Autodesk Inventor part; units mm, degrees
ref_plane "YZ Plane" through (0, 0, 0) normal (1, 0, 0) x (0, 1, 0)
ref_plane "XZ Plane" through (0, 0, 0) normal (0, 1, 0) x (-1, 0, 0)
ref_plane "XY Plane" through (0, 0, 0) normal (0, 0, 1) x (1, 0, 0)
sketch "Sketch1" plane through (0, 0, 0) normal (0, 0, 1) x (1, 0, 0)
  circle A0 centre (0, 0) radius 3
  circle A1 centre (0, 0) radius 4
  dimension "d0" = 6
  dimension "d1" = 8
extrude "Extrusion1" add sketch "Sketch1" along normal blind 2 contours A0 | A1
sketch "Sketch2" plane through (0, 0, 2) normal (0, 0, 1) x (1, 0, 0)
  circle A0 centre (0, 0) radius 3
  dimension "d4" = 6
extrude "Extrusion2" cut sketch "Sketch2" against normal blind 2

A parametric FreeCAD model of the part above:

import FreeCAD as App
import Part
import Sketcher
from FreeCAD import Vector
Q = App.Units.Quantity

doc = App.newDocument("Part")
body = doc.addObject("PartDesign::Body", "Body")

sketch1 = body.newObject("Sketcher::SketchObject", "Sketch")
sketch1.AttachmentSupport = (doc.getObject("XY_Plane"), [""])
sketch1.MapMode = "FlatFace"
sketch1.addGeometry(Part.Circle(Vector(0, 0, 0), Vector(0, 0, 1), 4), False)
sketch1.addConstraint([
    Sketcher.Constraint("Coincident", 0, 3, -1, 1),
    Sketcher.Constraint("Diameter", 0, Q("8 mm")),
])
pad1 = body.newObject("PartDesign::Pad", "Pad")
pad1.Profile = sketch1
pad1.Length = 2

sketch2 = body.newObject("Sketcher::SketchObject", "Sketch001")
sketch2.AttachmentSupport = (doc.getObject("XY_Plane"), [""])
sketch2.MapMode = "FlatFace"
sketch2.AttachmentOffset = App.Placement(Vector(0, 0, 2), App.Rotation())
sketch2.addGeometry(Part.Circle(Vector(0, 0, 0), Vector(0, 0, 1), 3), False)
sketch2.addConstraint([
    Sketcher.Constraint("Coincident", 0, 3, -1, 1),
    Sketcher.Constraint("Diameter", 0, Q("6 mm")),
])
pocket1 = body.newObject("PartDesign::Pocket", "Pocket")
pocket1.Profile = sketch2
pocket1.Length = 2

doc.recompute()
